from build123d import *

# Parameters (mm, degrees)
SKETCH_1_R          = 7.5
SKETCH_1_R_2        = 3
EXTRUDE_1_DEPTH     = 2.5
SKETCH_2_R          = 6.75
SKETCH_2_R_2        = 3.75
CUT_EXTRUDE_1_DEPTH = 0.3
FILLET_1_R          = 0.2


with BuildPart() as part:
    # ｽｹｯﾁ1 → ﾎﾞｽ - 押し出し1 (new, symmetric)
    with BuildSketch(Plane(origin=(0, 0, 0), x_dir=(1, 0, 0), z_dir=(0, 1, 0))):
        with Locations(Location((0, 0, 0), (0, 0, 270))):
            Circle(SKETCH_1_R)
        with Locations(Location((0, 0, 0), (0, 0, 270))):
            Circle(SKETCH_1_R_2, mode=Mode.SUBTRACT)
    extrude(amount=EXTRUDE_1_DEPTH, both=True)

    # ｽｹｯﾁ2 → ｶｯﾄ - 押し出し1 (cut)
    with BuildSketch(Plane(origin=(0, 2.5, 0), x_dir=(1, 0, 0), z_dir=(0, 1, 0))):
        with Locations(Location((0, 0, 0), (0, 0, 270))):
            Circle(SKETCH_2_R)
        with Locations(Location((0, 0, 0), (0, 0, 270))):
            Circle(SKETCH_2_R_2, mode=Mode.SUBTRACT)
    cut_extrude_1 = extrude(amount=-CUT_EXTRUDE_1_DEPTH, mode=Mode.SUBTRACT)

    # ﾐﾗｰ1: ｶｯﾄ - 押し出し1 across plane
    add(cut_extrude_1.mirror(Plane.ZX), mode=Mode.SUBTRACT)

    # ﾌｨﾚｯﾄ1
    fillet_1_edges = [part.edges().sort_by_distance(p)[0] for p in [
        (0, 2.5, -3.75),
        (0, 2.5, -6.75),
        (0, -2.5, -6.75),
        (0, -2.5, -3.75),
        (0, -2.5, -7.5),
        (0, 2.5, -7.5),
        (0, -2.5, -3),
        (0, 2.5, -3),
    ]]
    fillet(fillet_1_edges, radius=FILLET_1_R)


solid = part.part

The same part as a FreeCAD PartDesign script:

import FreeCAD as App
import Part
import Sketcher

V = App.Vector
Q = App.Units.Quantity


def edges_at(feature, points):
    """Names of the edges that pass closest to the given points."""
    edges = feature.Shape.Edges
    near = lambda p: min(range(len(edges)), key=lambda i: edges[i].distToShape(Part.Vertex(*p))[0])
    return sorted({f"Edge{near(p) + 1}" for p in points})

doc = App.newDocument("Part")
body = doc.addObject("PartDesign::Body", "Body")

sketch1 = doc.addObject("Sketcher::SketchObject", "Sketch")
body.addObject(sketch1)
sketch1.AttachmentSupport = (doc.XZ_Plane, [""])
sketch1.MapMode = "FlatFace"
sketch1.addGeometry([
    Part.Circle(V(0, 0, 0), V(0, 0, 1), 7.5),
    Part.Circle(V(0, 0, 0), V(0, 0, 1), 3),
], False)
sketch1.addConstraint([
    Sketcher.Constraint("Coincident", 0, 3, -1, 1),
    Sketcher.Constraint("Coincident", 1, 3, -1, 1),
    Sketcher.Constraint("Diameter", 0, Q("15 mm")),
    Sketcher.Constraint("Diameter", 1, Q("6 mm")),
])
pad1 = doc.addObject("PartDesign::Pad", "Pad")
body.addObject(pad1)
pad1.Profile = sketch1
pad1.Length = 5
pad1.Midplane = True

sketch2 = doc.addObject("Sketcher::SketchObject", "Sketch001")
body.addObject(sketch2)
sketch2.AttachmentSupport = (doc.XZ_Plane, [""])
sketch2.MapMode = "FlatFace"
sketch2.AttachmentOffset = App.Placement(V(0, 0, -2.5), App.Rotation())
sketch2.addGeometry([
    Part.Circle(V(0, 0, 0), V(0, 0, 1), 6.75),
    Part.Circle(V(0, 0, 0), V(0, 0, 1), 3.75),
], False)
sketch2.addConstraint([
    Sketcher.Constraint("Coincident", 0, 3, -1, 1),
    Sketcher.Constraint("Coincident", 1, 3, -1, 1),
    Sketcher.Constraint("Diameter", 0, Q("13.5 mm")),
    Sketcher.Constraint("Diameter", 1, Q("7.5 mm")),
])
pocket1 = doc.addObject("PartDesign::Pocket", "Pocket")
body.addObject(pocket1)
pocket1.Profile = sketch2
pocket1.Length = 0.3
pocket1.Reversed = True
doc.recompute()

mirrored = doc.addObject("PartDesign::Mirrored", "Mirrored")
body.addObject(mirrored)
mirrored.Originals = [pocket1]
mirrored.MirrorPlane = (doc.XZ_Plane, [""])
body.Tip = mirrored
doc.recompute()

fillet = doc.addObject("PartDesign::Fillet", "Fillet")
body.addObject(fillet)
fillet.Base = (mirrored, edges_at(mirrored, [
    (0, 2.5, -3.75),
    (0, 2.5, -6.75),
    (0, -2.5, -6.75),
    (0, -2.5, -3.75),
    (0, -2.5, -7.5),
    (0, 2.5, -7.5),
    (0, -2.5, -3),
    (0, 2.5, -3),
]))
fillet.Radius = 0.2

doc.recompute()
